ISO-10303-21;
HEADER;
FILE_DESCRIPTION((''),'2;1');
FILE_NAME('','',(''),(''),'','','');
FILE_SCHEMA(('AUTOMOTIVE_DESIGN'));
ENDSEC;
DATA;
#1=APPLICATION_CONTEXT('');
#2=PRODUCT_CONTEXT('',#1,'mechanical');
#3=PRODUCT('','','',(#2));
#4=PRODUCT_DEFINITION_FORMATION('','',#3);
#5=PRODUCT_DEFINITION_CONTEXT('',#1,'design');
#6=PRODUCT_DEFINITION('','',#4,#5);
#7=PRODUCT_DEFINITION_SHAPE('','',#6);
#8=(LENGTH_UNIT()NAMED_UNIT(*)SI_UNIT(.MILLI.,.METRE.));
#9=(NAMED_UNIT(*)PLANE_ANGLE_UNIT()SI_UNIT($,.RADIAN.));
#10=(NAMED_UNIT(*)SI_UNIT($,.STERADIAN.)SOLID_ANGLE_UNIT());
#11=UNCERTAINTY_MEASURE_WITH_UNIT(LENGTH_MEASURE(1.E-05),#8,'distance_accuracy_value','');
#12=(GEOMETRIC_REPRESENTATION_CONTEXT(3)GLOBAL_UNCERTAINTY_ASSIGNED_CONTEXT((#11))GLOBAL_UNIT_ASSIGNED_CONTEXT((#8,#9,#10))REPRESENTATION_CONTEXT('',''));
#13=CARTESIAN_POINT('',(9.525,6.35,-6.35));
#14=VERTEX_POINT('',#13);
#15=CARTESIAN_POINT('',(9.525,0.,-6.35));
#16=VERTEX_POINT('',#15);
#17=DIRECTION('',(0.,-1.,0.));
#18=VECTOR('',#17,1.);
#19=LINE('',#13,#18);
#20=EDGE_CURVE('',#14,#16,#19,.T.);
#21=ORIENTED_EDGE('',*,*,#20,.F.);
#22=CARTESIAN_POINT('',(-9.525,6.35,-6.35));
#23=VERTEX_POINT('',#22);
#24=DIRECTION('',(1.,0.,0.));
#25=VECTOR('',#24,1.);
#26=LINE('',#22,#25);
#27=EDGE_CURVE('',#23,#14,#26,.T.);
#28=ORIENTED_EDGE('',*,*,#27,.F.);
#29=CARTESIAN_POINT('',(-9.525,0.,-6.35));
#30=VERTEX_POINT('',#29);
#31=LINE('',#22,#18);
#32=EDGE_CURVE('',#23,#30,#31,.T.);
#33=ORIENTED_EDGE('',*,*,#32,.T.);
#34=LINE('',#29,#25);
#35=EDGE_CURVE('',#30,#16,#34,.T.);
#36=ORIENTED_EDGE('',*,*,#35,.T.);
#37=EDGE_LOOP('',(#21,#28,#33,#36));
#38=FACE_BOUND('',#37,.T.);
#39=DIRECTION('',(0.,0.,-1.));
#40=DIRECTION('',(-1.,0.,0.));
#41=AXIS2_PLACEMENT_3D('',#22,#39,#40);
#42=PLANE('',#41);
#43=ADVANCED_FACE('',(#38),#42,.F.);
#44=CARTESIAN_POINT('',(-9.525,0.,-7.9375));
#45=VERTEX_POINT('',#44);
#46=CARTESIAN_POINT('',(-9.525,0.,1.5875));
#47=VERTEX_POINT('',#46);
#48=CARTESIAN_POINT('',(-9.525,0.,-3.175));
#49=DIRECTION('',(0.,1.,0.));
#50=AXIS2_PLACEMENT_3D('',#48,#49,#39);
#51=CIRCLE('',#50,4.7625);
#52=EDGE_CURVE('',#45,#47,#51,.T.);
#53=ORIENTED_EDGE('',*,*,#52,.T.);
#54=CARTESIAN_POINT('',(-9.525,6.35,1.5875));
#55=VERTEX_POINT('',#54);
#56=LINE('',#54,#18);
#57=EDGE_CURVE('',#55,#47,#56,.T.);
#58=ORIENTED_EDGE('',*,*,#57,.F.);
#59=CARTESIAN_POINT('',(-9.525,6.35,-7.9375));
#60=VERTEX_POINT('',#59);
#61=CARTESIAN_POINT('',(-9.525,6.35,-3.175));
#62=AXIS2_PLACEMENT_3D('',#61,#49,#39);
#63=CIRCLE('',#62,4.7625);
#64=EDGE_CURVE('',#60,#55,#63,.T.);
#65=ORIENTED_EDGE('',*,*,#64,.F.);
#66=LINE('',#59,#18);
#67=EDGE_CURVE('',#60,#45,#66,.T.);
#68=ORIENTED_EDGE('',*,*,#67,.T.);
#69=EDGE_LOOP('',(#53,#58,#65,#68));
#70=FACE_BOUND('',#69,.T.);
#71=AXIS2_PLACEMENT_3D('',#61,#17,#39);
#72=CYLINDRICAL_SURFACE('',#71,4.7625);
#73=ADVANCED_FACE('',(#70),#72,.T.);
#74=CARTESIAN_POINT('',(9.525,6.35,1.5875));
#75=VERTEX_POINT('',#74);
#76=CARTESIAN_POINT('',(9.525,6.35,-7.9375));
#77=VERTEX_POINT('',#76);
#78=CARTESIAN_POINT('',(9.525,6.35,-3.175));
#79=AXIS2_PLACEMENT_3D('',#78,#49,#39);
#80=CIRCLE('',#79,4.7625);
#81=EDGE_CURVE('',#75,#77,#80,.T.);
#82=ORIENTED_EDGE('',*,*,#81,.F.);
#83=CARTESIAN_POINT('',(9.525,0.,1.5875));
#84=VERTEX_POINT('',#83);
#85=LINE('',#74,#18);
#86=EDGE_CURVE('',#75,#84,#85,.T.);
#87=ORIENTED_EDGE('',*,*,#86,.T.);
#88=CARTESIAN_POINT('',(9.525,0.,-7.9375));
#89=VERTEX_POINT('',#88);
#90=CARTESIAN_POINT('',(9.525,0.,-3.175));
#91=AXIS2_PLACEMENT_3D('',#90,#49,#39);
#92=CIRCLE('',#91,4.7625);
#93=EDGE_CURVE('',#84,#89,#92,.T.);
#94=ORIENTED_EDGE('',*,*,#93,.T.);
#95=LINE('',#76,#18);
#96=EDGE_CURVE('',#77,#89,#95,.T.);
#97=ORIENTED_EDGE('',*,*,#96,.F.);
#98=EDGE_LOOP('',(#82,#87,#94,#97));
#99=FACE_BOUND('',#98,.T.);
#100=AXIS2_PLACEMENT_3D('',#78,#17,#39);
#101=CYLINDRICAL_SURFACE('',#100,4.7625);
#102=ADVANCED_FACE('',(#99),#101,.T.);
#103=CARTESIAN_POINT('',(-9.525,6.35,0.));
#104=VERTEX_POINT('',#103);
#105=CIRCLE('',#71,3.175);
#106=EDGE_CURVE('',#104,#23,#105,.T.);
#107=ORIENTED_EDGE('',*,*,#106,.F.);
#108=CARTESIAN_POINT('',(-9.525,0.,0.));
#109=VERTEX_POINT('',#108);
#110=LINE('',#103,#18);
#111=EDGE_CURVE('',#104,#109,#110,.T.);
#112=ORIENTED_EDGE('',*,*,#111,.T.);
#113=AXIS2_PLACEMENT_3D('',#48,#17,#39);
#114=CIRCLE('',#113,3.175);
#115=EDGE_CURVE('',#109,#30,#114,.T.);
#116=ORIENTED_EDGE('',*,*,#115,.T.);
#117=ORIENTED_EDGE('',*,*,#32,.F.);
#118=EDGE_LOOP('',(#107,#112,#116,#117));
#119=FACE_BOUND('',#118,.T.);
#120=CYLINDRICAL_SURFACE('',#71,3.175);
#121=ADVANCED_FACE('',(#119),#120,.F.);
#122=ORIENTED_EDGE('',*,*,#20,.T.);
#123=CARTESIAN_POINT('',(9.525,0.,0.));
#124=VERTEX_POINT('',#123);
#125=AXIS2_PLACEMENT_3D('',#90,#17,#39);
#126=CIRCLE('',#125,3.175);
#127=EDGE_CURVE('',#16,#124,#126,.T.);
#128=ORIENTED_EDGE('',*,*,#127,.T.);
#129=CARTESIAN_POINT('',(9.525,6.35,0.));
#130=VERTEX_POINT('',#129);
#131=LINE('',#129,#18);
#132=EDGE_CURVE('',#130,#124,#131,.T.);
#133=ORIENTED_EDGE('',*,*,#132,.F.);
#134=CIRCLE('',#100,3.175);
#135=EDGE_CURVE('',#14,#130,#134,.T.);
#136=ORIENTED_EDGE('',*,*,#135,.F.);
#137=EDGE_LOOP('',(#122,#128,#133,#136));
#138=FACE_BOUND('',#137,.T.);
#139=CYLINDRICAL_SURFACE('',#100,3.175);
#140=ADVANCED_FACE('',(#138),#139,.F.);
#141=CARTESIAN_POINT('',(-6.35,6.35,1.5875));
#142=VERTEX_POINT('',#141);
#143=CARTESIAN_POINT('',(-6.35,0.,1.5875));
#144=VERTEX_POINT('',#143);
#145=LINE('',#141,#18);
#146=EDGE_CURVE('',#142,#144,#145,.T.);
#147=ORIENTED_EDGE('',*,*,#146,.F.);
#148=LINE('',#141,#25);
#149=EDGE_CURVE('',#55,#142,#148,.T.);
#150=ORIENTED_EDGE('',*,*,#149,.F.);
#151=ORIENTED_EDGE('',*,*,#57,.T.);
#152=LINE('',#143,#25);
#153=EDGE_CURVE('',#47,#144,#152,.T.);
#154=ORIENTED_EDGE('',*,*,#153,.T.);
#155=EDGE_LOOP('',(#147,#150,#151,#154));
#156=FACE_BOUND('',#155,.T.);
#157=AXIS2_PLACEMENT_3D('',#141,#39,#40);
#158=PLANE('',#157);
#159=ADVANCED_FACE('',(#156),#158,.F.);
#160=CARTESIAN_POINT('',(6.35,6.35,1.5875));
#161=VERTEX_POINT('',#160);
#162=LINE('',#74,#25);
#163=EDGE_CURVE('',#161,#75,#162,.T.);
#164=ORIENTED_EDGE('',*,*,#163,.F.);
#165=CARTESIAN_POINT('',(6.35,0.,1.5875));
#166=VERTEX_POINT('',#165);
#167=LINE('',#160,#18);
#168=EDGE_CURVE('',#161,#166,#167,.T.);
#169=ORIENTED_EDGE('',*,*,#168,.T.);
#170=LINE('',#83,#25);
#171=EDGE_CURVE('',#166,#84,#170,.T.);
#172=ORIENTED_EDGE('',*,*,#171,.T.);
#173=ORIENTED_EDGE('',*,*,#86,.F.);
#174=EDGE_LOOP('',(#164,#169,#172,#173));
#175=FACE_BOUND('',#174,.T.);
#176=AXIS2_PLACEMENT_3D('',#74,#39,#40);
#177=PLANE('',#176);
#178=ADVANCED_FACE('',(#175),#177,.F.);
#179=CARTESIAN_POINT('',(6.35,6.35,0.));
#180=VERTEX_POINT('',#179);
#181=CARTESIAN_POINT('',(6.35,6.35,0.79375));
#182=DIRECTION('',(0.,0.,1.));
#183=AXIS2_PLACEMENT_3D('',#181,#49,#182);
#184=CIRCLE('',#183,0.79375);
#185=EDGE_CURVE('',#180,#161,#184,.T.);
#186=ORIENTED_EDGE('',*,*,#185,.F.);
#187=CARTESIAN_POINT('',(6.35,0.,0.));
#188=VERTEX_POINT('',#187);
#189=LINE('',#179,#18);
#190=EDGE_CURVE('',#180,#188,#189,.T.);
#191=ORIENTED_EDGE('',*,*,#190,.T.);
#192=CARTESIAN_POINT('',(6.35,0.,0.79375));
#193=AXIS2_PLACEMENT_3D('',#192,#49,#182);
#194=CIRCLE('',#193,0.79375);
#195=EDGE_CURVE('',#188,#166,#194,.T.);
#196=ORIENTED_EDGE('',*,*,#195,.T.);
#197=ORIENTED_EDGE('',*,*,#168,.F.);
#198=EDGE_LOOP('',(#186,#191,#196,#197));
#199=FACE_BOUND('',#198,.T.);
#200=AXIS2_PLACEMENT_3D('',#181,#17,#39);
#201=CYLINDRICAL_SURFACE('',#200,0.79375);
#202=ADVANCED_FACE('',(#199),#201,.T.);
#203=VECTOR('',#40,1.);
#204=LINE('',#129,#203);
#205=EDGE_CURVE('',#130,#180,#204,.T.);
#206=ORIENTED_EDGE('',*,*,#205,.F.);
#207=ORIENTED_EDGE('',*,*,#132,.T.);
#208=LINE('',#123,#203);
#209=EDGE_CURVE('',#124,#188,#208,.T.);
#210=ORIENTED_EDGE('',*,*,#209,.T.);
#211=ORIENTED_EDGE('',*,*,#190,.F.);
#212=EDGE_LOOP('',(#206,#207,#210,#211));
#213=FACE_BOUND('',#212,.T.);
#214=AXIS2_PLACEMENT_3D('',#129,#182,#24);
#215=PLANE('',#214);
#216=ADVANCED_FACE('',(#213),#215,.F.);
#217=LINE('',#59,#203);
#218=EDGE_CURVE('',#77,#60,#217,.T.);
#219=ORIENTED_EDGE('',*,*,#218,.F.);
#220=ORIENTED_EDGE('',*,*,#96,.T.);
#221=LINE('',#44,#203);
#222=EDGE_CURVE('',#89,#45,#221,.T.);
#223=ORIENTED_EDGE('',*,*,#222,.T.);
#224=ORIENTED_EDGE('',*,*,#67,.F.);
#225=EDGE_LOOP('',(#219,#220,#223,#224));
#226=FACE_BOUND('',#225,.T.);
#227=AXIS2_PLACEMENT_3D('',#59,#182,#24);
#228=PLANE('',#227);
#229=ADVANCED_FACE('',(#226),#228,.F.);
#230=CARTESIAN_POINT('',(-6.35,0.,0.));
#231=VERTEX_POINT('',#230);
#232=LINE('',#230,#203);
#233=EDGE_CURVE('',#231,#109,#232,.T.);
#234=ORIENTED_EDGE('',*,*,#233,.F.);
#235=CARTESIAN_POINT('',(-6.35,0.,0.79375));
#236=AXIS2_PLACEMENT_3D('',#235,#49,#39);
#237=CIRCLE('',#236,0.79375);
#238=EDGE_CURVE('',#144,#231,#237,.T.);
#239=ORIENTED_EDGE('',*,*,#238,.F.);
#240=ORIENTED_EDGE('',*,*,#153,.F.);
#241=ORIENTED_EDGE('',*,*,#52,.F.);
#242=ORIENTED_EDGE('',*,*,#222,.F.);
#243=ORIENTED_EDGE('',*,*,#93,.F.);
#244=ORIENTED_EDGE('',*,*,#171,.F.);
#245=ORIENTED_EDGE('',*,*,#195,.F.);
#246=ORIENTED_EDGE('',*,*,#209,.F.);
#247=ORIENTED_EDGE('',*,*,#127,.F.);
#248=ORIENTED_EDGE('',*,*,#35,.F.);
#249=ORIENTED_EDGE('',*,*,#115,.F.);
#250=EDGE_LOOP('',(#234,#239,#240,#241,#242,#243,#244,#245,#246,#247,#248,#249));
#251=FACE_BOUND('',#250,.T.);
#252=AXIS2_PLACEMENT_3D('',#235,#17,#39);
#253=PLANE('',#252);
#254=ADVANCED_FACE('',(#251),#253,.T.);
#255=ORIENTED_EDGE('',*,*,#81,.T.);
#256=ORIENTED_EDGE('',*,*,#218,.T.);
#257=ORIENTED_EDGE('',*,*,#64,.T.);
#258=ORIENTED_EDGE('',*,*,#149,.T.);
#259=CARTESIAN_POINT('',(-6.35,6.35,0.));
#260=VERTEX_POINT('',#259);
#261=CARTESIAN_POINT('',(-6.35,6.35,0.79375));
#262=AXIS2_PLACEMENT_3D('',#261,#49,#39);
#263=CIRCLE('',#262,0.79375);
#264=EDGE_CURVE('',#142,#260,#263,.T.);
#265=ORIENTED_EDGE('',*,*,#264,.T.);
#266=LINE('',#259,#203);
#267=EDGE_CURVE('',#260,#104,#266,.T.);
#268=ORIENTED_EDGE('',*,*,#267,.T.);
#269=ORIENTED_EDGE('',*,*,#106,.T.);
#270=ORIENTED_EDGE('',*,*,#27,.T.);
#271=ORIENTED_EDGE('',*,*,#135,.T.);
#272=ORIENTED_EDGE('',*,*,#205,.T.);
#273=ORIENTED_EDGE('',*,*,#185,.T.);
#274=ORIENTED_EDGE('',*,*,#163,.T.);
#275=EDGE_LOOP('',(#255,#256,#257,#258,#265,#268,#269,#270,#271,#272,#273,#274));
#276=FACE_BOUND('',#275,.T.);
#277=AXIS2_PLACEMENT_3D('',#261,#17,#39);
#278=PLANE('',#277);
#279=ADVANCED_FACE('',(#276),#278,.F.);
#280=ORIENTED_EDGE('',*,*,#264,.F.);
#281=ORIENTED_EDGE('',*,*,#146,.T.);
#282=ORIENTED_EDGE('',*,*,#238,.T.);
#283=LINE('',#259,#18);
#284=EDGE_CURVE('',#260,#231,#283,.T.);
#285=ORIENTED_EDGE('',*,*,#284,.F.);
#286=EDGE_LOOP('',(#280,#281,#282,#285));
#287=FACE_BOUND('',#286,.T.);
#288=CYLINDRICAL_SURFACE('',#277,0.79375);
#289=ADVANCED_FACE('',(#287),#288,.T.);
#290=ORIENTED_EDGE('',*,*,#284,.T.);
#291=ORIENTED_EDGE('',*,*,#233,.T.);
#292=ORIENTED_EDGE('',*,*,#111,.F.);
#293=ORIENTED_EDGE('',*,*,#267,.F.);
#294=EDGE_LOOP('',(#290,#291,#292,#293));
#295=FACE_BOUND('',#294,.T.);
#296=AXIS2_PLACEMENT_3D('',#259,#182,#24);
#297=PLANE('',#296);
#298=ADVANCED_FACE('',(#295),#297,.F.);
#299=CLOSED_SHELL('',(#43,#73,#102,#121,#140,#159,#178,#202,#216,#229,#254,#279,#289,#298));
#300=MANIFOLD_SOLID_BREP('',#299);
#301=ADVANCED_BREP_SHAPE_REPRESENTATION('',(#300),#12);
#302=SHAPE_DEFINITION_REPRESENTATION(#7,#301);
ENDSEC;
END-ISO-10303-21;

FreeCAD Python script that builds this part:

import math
import FreeCAD as App
import Part
import Sketcher

V = App.Vector
Q = App.Units.Quantity

doc = App.newDocument("Part")
body = doc.addObject("PartDesign::Body", "Body")

sketch1 = body.newObject("Sketcher::SketchObject", "Sketch")
sketch1.AttachmentSupport = (doc.getObject("XZ_Plane"), [""])
sketch1.MapMode = "FlatFace"
sketch1.addGeometry(Part.LineSegment(V(-6.3, 0, 0), V(-9.5, 0, 0)), False)
sketch1.addGeometry(Part.ArcOfCircle(Part.Circle(V(-9.5, -3.2, 0), V(0, 0, 1), 3.2), math.radians(90), math.radians(270)), False)
sketch1.addGeometry(Part.LineSegment(V(-9.5, -6.3, 0), V(9.5, -6.3, 0)), False)
sketch1.addGeometry(Part.ArcOfCircle(Part.Circle(V(9.5, -3.2, 0), V(0, 0, 1), 3.2), math.radians(-90), math.radians(90)), False)
sketch1.addGeometry(Part.LineSegment(V(9.5, 0, 0), V(6.3, 0, 0)), False)
sketch1.addGeometry(Part.ArcOfCircle(Part.Circle(V(6.3, 0.8, 0), V(0, 0, 1), 0.8), math.radians(90), math.radians(270)), False)
sketch1.addGeometry(Part.LineSegment(V(6.3, 1.6, 0), V(9.5, 1.6, 0)), False)
sketch1.addGeometry(Part.ArcOfCircle(Part.Circle(V(9.5, -3.2, 0), V(0, 0, 1), 4.8), math.radians(-90), math.radians(90)), False)
sketch1.addGeometry(Part.LineSegment(V(9.5, -7.9, 0), V(-9.5, -7.9, 0)), False)
sketch1.addGeometry(Part.ArcOfCircle(Part.Circle(V(-9.5, -3.2, 0), V(0, 0, 1), 4.8), math.radians(90), math.radians(270)), False)
sketch1.addGeometry(Part.LineSegment(V(-9.5, 1.6, 0), V(-6.3, 1.6, 0)), False)
sketch1.addGeometry(Part.ArcOfCircle(Part.Circle(V(-6.3, 0.8, 0), V(0, 0, 1), 0.8), math.radians(-90), math.radians(90)), False)
sketch1.addConstraint(Sketcher.Constraint("Tangent", 0, 2, 1, 1))
sketch1.addConstraint(Sketcher.Constraint("Tangent", 1, 2, 2, 1))
sketch1.addConstraint(Sketcher.Constraint("Tangent", 2, 2, 3, 1))
sketch1.addConstraint(Sketcher.Constraint("Tangent", 3, 2, 4, 1))
sketch1.addConstraint(Sketcher.Constraint("Tangent", 4, 2, 5, 2))
sketch1.addConstraint(Sketcher.Constraint("Tangent", 5, 1, 6, 1))
sketch1.addConstraint(Sketcher.Constraint("Tangent", 6, 2, 7, 2))
sketch1.addConstraint(Sketcher.Constraint("Tangent", 7, 1, 8, 1))
sketch1.addConstraint(Sketcher.Constraint("Tangent", 8, 2, 9, 2))
sketch1.addConstraint(Sketcher.Constraint("Tangent", 9, 1, 10, 1))
sketch1.addConstraint(Sketcher.Constraint("Tangent", 10, 2, 11, 2))
sketch1.addConstraint(Sketcher.Constraint("Tangent", 11, 1, 0, 1))
sketch1.addConstraint(Sketcher.Constraint("Horizontal", 0))
sketch1.addConstraint(Sketcher.Constraint("Horizontal", 2))
sketch1.addConstraint(Sketcher.Constraint("Horizontal", 4))
sketch1.addConstraint(Sketcher.Constraint("Horizontal", 6))
sketch1.addConstraint(Sketcher.Constraint("Horizontal", 8))
sketch1.addConstraint(Sketcher.Constraint("Horizontal", 10))
sketch1.addConstraint(Sketcher.Constraint("Coincident", 7, 3, 3, 3))
sketch1.addConstraint(Sketcher.Constraint("Coincident", 9, 3, 1, 3))
sketch1.addConstraint(Sketcher.Constraint("Equal", 1, 3))
sketch1.addConstraint(Sketcher.Constraint("Symmetric", 0, 2, 3, 2, -1, 1))
sketch1.addConstraint(Sketcher.Constraint("Equal", 0, 4))
sketch1.addConstraint(Sketcher.Constraint("Radius", 1, Q("0.125 in")))
sketch1.addConstraint(Sketcher.Constraint("Radius", 5, Q("0.03125 in")))
sketch1.addConstraint(Sketcher.Constraint("DistanceX", 2, 1, 2, 2, Q("0.75 in")))
sketch1.addConstraint(Sketcher.Constraint("DistanceX", 11, 3, 5, 3, Q("0.5 in")))
pad1 = body.newObject("PartDesign::Pad", "Pad")
pad1.Profile = sketch1
pad1.Length = Q("0.25 in")
pad1.Reversed = True

doc.recompute()
